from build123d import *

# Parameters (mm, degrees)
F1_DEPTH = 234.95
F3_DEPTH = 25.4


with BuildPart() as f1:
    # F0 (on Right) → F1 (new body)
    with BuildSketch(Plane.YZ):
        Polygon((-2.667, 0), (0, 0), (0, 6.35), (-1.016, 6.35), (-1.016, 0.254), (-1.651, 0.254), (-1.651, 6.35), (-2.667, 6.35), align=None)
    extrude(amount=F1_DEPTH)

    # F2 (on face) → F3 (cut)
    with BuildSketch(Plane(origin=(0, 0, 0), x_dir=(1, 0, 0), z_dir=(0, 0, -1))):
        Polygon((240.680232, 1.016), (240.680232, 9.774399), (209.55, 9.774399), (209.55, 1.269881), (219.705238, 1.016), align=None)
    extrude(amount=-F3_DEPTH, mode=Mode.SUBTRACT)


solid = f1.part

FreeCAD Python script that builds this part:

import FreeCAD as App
import Part
import Sketcher

V = App.Vector
Q = App.Units.Quantity


def add_polygon(sketch, points):
    """Adds a closed chain of lines whose ends are joined by coincident constraints."""
    first, n = sketch.GeometryCount, len(points)
    for a, b in zip(points, points[1:] + points[:1]):
        sketch.addGeometry(Part.LineSegment(App.Vector(*a, 0), App.Vector(*b, 0)), False)
    for i in range(n):
        sketch.addConstraint(Sketcher.Constraint("Coincident", first + i, 2, first + (i + 1) % n, 1))

doc = App.newDocument("Part")
params = doc.addObject("Spreadsheet::Sheet", "Params")
for row, (alias, value) in enumerate([
    ("sketch1_width", "0.04 in"),
    ("sketch1_height", "0.25 in"),
    ("sketch1_height2", "0.24 in"),
    ("sketch1_width2", "0.105 in"),
    ("pad1_length", "9.25 in"),
    ("pocket1_length", "1 in"),
], start=1):
    params.set(f"A{row}", alias)
    params.set(f"B{row}", "=" + value)
    params.setAlias(f"B{row}", alias)

body = doc.addObject("PartDesign::Body", "Body")

# Sketch on YZ plane
sketch1 = body.newObject("Sketcher::SketchObject", "Sketch")
sketch1.AttachmentSupport = (doc.getObject("YZ_Plane"), [""])
sketch1.MapMode = "FlatFace"
add_polygon(sketch1, [(-2.667, 0), (0, 0), (0, 6.35), (-1.016, 6.35), (-1.016, 0.254), (-1.651, 0.254), (-1.651, 6.35), (-2.667, 6.35)])  # lines 0-7
sketch1.addConstraint([
    Sketcher.Constraint("Horizontal", 0),
    Sketcher.Constraint("Vertical", 1),
    Sketcher.Constraint("Horizontal", 2),
    Sketcher.Constraint("Vertical", 3),
    Sketcher.Constraint("Horizontal", 4),
    Sketcher.Constraint("Vertical", 5),
    Sketcher.Constraint("Horizontal", 6),
    Sketcher.Constraint("Vertical", 7),
    Sketcher.Constraint("Coincident", 0, 2, -1, 1),
    Sketcher.Constraint("Horizontal", 2, 2, 5, 2),
    Sketcher.Constraint("Equal", 2, 6),
    Sketcher.Constraint("DistanceX", 2, 2, 2, 1, Q("0.04 in")),
    Sketcher.Constraint("DistanceY", 1, 1, 1, 2, Q("0.25 in")),
    Sketcher.Constraint("DistanceY", 3, 2, 3, 1, Q("0.24 in")),
    Sketcher.Constraint("DistanceX", 0, 1, 0, 2, Q("0.105 in")),
])
sketch1.setExpression("Constraints[19]", "Params.sketch1_width")
sketch1.setExpression("Constraints[20]", "Params.sketch1_height")
sketch1.setExpression("Constraints[21]", "Params.sketch1_height2")
sketch1.setExpression("Constraints[22]", "Params.sketch1_width2")
pad1 = body.newObject("PartDesign::Pad", "Pad")
pad1.Profile = sketch1
pad1.setExpression("Length", "Params.pad1_length")

# Sketch on XY plane
sketch2 = body.newObject("Sketcher::SketchObject", "Sketch001")
sketch2.AttachmentSupport = (doc.getObject("XY_Plane"), [""])
sketch2.MapMode = "FlatFace"
add_polygon(sketch2, [(240.680232, -1.016), (240.680232, -9.774399), (209.55, -9.774399), (209.55, -1.269881), (219.705238, -1.016)])  # lines 0-4
sketch2.addConstraint([
    Sketcher.Constraint("Vertical", 0),
    Sketcher.Constraint("Horizontal", 1),
    Sketcher.Constraint("Vertical", 2),
    Sketcher.Constraint("Horizontal", 4),
    Sketcher.Constraint("DistanceX", -1, 1, 1, 2, Q("8.25 in")),
    Sketcher.Constraint("DistanceY", 3, 2, -1, 1, Q("0.04 in")),
    Sketcher.Constraint("DistanceY", 0, 2, 0, 1, 8.758399),
    Sketcher.Constraint("DistanceX", 1, 2, 1, 1, 31.130232),
    Sketcher.Constraint("DistanceY", 2, 1, 2, 2, 8.504518),
    Sketcher.Constraint("Distance", 3, 10.158411),
])
pocket1 = body.newObject("PartDesign::Pocket", "Pocket")
pocket1.Profile = sketch2
pocket1.setExpression("Length", "Params.pocket1_length")
pocket1.Reversed = True

doc.recompute()
